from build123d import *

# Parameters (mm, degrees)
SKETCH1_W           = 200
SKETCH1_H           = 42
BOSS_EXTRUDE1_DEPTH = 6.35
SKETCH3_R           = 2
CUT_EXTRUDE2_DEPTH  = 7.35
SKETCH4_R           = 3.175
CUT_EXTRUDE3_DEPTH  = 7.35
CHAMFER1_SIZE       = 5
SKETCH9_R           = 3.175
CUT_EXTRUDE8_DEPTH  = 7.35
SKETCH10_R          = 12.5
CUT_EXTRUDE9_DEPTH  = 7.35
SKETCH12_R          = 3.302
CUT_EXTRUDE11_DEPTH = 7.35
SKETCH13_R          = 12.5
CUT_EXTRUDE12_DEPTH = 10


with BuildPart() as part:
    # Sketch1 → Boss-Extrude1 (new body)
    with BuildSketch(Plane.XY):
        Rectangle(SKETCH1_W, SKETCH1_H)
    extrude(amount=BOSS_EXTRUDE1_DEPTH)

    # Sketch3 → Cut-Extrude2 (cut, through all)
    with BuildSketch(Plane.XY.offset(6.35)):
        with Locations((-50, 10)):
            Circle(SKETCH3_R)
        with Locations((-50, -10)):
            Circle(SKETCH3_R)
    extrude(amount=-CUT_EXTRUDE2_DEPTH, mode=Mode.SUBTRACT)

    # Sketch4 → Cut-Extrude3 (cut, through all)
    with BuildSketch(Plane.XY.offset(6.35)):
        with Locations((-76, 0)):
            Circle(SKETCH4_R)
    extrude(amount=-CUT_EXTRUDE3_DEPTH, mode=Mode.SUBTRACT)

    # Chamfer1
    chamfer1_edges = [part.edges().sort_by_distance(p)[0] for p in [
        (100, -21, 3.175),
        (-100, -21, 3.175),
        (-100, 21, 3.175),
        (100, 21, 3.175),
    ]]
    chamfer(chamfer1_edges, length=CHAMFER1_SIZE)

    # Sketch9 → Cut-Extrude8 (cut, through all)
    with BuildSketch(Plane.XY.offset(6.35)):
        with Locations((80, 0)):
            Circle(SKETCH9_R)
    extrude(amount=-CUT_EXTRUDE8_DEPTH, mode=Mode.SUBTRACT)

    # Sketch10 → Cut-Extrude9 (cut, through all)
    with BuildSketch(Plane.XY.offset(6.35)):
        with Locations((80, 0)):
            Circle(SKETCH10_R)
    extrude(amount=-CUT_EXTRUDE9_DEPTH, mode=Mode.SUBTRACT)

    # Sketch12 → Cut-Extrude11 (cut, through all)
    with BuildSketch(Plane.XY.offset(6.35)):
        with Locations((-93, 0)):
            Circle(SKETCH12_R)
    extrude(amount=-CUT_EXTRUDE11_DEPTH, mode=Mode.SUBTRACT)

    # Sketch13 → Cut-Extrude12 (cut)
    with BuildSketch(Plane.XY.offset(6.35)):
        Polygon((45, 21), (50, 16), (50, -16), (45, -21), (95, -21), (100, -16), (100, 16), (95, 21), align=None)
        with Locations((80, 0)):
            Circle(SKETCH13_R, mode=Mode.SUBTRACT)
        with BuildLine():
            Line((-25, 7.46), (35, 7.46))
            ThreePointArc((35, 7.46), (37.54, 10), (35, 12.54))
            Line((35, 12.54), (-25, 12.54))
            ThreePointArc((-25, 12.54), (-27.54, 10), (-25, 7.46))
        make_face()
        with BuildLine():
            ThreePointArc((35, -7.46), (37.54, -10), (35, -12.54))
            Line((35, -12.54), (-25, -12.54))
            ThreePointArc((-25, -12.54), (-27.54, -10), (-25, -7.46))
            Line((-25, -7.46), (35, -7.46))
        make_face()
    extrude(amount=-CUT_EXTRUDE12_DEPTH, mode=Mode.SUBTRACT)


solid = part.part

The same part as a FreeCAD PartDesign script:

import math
import FreeCAD as App
import Part
import Sketcher

V = App.Vector


def edges_at(feature, points):
    """Names of the edges that pass closest to the given points."""
    edges = feature.Shape.Edges
    near = lambda p: min(range(len(edges)), key=lambda i: edges[i].distToShape(Part.Vertex(*p))[0])
    return sorted({f"Edge{near(p) + 1}" for p in points})

doc = App.newDocument("Part")
body = doc.addObject("PartDesign::Body", "Body")

sketch1 = body.newObject("Sketcher::SketchObject", "Sketch")
sketch1.AttachmentSupport = (doc.getObject("XY_Plane"), [""])
sketch1.MapMode = "FlatFace"
sketch1.addGeometry([
    Part.LineSegment(V(-100, 21, 0), V(-100, -21, 0)),
    Part.LineSegment(V(-100, -21, 0), V(100, -21, 0)),
    Part.LineSegment(V(100, -21, 0), V(100, 21, 0)),
    Part.LineSegment(V(100, 21, 0), V(-100, 21, 0)),
], False)
sketch1.addConstraint([
    Sketcher.Constraint("Coincident", 0, 2, 1, 1),
    Sketcher.Constraint("Coincident", 1, 2, 2, 1),
    Sketcher.Constraint("Coincident", 2, 2, 3, 1),
    Sketcher.Constraint("Coincident", 3, 2, 0, 1),
    Sketcher.Constraint("Vertical", 0),
    Sketcher.Constraint("Horizontal", 1),
    Sketcher.Constraint("Vertical", 2),
    Sketcher.Constraint("Horizontal", 3),
    Sketcher.Constraint("Symmetric", 0, 2, 2, 2, -1, 1),
    Sketcher.Constraint("DistanceX", 1, 1, 1, 2, 200.0),
    Sketcher.Constraint("DistanceY", 0, 2, 0, 1, 42.0),
])
pad1 = body.newObject("PartDesign::Pad", "Pad")
pad1.Profile = sketch1
pad1.Length = 6.35

sketch2 = body.newObject("Sketcher::SketchObject", "Sketch001")
sketch2.AttachmentSupport = (doc.getObject("XY_Plane"), [""])
sketch2.MapMode = "FlatFace"
sketch2.AttachmentOffset = App.Placement(V(0, 0, 6.35), App.Rotation())
sketch2.addGeometry([
    Part.Circle(V(-50, 10, 0), V(0, 0, 1), 2),
    Part.Circle(V(-50, -10, 0), V(0, 0, 1), 2),
], False)
sketch2.addConstraint([
    Sketcher.Constraint("Equal", 0, 1),
    Sketcher.Constraint("Symmetric", 0, 3, 1, 3, -1),
    Sketcher.Constraint("Diameter", 0, 4.0),
    Sketcher.Constraint("DistanceX", 0, 3, -1, 1, 50.0),
    Sketcher.Constraint("DistanceY", -1, 1, 0, 3, 10.0),
])
pocket1 = body.newObject("PartDesign::Pocket", "Pocket")
pocket1.Profile = sketch2
pocket1.Type = "ThroughAll"

sketch3 = body.newObject("Sketcher::SketchObject", "Sketch002")
sketch3.AttachmentSupport = (doc.getObject("XY_Plane"), [""])
sketch3.MapMode = "FlatFace"
sketch3.AttachmentOffset = App.Placement(V(0, 0, 6.35), App.Rotation())
sketch3.addGeometry(Part.Circle(V(-76, 0, 0), V(0, 0, 1), 3.175), False)
sketch3.addConstraint([
    Sketcher.Constraint("PointOnObject", 0, 3, -1),
    Sketcher.Constraint("Diameter", 0, 6.35),
    Sketcher.Constraint("DistanceX", 0, 3, -1, 1, 76.0),
])
pocket2 = body.newObject("PartDesign::Pocket", "Pocket001")
pocket2.Profile = sketch3
pocket2.Type = "ThroughAll"
doc.recompute()

chamfer = body.newObject("PartDesign::Chamfer", "Chamfer")
chamfer.Base = (pocket2, edges_at(pocket2, [
    (100, -21, 3.175),
    (-100, -21, 3.175),
    (-100, 21, 3.175),
    (100, 21, 3.175),
]))
chamfer.Size = 5

sketch4 = body.newObject("Sketcher::SketchObject", "Sketch003")
sketch4.AttachmentSupport = (doc.getObject("XY_Plane"), [""])
sketch4.MapMode = "FlatFace"
sketch4.AttachmentOffset = App.Placement(V(0, 0, 6.35), App.Rotation())
sketch4.addGeometry(Part.Circle(V(80, 0, 0), V(0, 0, 1), 3.175), False)
sketch4.addConstraint([
    Sketcher.Constraint("PointOnObject", 0, 3, -1),
    Sketcher.Constraint("Diameter", 0, 6.35),
    Sketcher.Constraint("DistanceX", -1, 1, 0, 3, 80.0),
])
pocket3 = body.newObject("PartDesign::Pocket", "Pocket002")
pocket3.Profile = sketch4
pocket3.Type = "ThroughAll"

sketch5 = body.newObject("Sketcher::SketchObject", "Sketch004")
sketch5.AttachmentSupport = (doc.getObject("XY_Plane"), [""])
sketch5.MapMode = "FlatFace"
sketch5.AttachmentOffset = App.Placement(V(0, 0, 6.35), App.Rotation())
sketch5.addGeometry(Part.Circle(V(80, 0, 0), V(0, 0, 1), 12.5), False)
sketch5.addConstraint([
    Sketcher.Constraint("PointOnObject", 0, 3, -1),
    Sketcher.Constraint("Diameter", 0, 25.0),
    Sketcher.Constraint("DistanceX", -1, 1, 0, 3, 80.0),
])
pocket4 = body.newObject("PartDesign::Pocket", "Pocket003")
pocket4.Profile = sketch5
pocket4.Type = "ThroughAll"

sketch6 = body.newObject("Sketcher::SketchObject", "Sketch005")
sketch6.AttachmentSupport = (doc.getObject("XY_Plane"), [""])
sketch6.MapMode = "FlatFace"
sketch6.AttachmentOffset = App.Placement(V(0, 0, 6.35), App.Rotation())
sketch6.addGeometry(Part.Circle(V(-93, 0, 0), V(0, 0, 1), 3.302), False)
sketch6.addConstraint([
    Sketcher.Constraint("PointOnObject", 0, 3, -1),
    Sketcher.Constraint("Diameter", 0, 6.604),
    Sketcher.Constraint("DistanceX", 0, 3, -1, 1, 93.0),
])
pocket5 = body.newObject("PartDesign::Pocket", "Pocket004")
pocket5.Profile = sketch6
pocket5.Type = "ThroughAll"

sketch7 = body.newObject("Sketcher::SketchObject", "Sketch006")
sketch7.AttachmentSupport = (doc.getObject("XY_Plane"), [""])
sketch7.MapMode = "FlatFace"
sketch7.AttachmentOffset = App.Placement(V(0, 0, 6.35), App.Rotation())
sketch7.addGeometry([
    Part.LineSegment(V(45, 21, 0), V(50, 16, 0)),
    Part.LineSegment(V(50, 16, 0), V(50, -16, 0)),
    Part.LineSegment(V(50, -16, 0), V(45, -21, 0)),
    Part.LineSegment(V(45, -21, 0), V(95, -21, 0)),
    Part.LineSegment(V(95, -21, 0), V(100, -16, 0)),
    Part.LineSegment(V(100, -16, 0), V(100, 16, 0)),
    Part.LineSegment(V(100, 16, 0), V(95, 21, 0)),
    Part.LineSegment(V(95, 21, 0), V(45, 21, 0)),
    Part.Circle(V(80, 0, 0), V(0, 0, 1), 12.5),
    Part.LineSegment(V(-25, 7.46, 0), V(35, 7.46, 0)),
    Part.ArcOfCircle(Part.Circle(V(35, 10, 0), V(0, 0, 1), 2.54), math.radians(-90), math.radians(90)),
    Part.LineSegment(V(35, 12.54, 0), V(-25, 12.54, 0)),
    Part.ArcOfCircle(Part.Circle(V(-25, 10, 0), V(0, 0, 1), 2.54), math.radians(90), math.radians(270)),
    Part.ArcOfCircle(Part.Circle(V(35, -10, 0), V(0, 0, 1), 2.54), math.radians(-90), math.radians(90)),
    Part.LineSegment(V(35, -7.46, 0), V(-25, -7.46, 0)),
    Part.ArcOfCircle(Part.Circle(V(-25, -10, 0), V(0, 0, 1), 2.54), math.radians(90), math.radians(270)),
    Part.LineSegment(V(-25, -12.54, 0), V(35, -12.54, 0)),
], False)
sketch7.addConstraint([
    Sketcher.Constraint("Coincident", 0, 2, 1, 1),
    Sketcher.Constraint("Coincident", 1, 2, 2, 1),
    Sketcher.Constraint("Coincident", 2, 2, 3, 1),
    Sketcher.Constraint("Coincident", 3, 2, 4, 1),
    Sketcher.Constraint("Coincident", 4, 2, 5, 1),
    Sketcher.Constraint("Coincident", 5, 2, 6, 1),
    Sketcher.Constraint("Coincident", 6, 2, 7, 1),
    Sketcher.Constraint("Coincident", 7, 2, 0, 1),
    Sketcher.Constraint("Tangent", 9, 2, 10, 1),
    Sketcher.Constraint("Tangent", 10, 2, 11, 1),
    Sketcher.Constraint("Tangent", 11, 2, 12, 1),
    Sketcher.Constraint("Tangent", 12, 2, 9, 1),
    Sketcher.Constraint("Tangent", 13, 2, 14, 1),
    Sketcher.Constraint("Tangent", 14, 2, 15, 1),
    Sketcher.Constraint("Tangent", 15, 2, 16, 1),
    Sketcher.Constraint("Tangent", 16, 2, 13, 1),
    Sketcher.Constraint("Vertical", 1),
    Sketcher.Constraint("Horizontal", 3),
    Sketcher.Constraint("Vertical", 5),
    Sketcher.Constraint("Horizontal", 7),
    Sketcher.Constraint("Horizontal", 9),
    Sketcher.Constraint("Horizontal", 11),
    Sketcher.Constraint("Horizontal", 14),
    Sketcher.Constraint("Horizontal", 16),
    Sketcher.Constraint("Equal", 12, 13),
    Sketcher.Constraint("Symmetric", 10, 3, 13, 3, -1),
    Sketcher.Constraint("Symmetric", 3, 2, 6, 2, -1),
    Sketcher.Constraint("PointOnObject", 8, 3, -1),
    Sketcher.Constraint("Perpendicular", 0, 2),
    Sketcher.Constraint("Parallel", 2, 4),
    Sketcher.Constraint("Perpendicular", 4, 6),
    Sketcher.Constraint("Horizontal", 1, 2, 4, 2),
    Sketcher.Constraint("Horizontal", 0, 2, 5, 2),
    Sketcher.Constraint("Vertical", 12, 3, 15, 3),
    Sketcher.Constraint("Equal", 0, 2),
    Sketcher.Constraint("Diameter", 8, 25.0),
    Sketcher.Constraint("DistanceX", 3, 1, 3, 2, 50.0),
    Sketcher.Constraint("DistanceX", 9, 1, 9, 2, 60.0),
    Sketcher.Constraint("DistanceY", 1, 2, 1, 1, 32.0),
    Sketcher.Constraint("Radius", 10, 2.54),
    Sketcher.Constraint("DistanceX", -1, 1, 8, 3, 80.0),
    Sketcher.Constraint("DistanceX", -1, 1, 10, 3, 35.0),
    Sketcher.Constraint("DistanceY", -1, 1, 10, 3, 10.0),
    Sketcher.Constraint("DistanceX", -1, 1, 0, 2, 50.0),
    Sketcher.Constraint("DistanceX", -1, 1, 2, 2, 45.0),
])
pocket6 = body.newObject("PartDesign::Pocket", "Pocket005")
pocket6.Profile = sketch7
pocket6.Length = 10

doc.recompute()
